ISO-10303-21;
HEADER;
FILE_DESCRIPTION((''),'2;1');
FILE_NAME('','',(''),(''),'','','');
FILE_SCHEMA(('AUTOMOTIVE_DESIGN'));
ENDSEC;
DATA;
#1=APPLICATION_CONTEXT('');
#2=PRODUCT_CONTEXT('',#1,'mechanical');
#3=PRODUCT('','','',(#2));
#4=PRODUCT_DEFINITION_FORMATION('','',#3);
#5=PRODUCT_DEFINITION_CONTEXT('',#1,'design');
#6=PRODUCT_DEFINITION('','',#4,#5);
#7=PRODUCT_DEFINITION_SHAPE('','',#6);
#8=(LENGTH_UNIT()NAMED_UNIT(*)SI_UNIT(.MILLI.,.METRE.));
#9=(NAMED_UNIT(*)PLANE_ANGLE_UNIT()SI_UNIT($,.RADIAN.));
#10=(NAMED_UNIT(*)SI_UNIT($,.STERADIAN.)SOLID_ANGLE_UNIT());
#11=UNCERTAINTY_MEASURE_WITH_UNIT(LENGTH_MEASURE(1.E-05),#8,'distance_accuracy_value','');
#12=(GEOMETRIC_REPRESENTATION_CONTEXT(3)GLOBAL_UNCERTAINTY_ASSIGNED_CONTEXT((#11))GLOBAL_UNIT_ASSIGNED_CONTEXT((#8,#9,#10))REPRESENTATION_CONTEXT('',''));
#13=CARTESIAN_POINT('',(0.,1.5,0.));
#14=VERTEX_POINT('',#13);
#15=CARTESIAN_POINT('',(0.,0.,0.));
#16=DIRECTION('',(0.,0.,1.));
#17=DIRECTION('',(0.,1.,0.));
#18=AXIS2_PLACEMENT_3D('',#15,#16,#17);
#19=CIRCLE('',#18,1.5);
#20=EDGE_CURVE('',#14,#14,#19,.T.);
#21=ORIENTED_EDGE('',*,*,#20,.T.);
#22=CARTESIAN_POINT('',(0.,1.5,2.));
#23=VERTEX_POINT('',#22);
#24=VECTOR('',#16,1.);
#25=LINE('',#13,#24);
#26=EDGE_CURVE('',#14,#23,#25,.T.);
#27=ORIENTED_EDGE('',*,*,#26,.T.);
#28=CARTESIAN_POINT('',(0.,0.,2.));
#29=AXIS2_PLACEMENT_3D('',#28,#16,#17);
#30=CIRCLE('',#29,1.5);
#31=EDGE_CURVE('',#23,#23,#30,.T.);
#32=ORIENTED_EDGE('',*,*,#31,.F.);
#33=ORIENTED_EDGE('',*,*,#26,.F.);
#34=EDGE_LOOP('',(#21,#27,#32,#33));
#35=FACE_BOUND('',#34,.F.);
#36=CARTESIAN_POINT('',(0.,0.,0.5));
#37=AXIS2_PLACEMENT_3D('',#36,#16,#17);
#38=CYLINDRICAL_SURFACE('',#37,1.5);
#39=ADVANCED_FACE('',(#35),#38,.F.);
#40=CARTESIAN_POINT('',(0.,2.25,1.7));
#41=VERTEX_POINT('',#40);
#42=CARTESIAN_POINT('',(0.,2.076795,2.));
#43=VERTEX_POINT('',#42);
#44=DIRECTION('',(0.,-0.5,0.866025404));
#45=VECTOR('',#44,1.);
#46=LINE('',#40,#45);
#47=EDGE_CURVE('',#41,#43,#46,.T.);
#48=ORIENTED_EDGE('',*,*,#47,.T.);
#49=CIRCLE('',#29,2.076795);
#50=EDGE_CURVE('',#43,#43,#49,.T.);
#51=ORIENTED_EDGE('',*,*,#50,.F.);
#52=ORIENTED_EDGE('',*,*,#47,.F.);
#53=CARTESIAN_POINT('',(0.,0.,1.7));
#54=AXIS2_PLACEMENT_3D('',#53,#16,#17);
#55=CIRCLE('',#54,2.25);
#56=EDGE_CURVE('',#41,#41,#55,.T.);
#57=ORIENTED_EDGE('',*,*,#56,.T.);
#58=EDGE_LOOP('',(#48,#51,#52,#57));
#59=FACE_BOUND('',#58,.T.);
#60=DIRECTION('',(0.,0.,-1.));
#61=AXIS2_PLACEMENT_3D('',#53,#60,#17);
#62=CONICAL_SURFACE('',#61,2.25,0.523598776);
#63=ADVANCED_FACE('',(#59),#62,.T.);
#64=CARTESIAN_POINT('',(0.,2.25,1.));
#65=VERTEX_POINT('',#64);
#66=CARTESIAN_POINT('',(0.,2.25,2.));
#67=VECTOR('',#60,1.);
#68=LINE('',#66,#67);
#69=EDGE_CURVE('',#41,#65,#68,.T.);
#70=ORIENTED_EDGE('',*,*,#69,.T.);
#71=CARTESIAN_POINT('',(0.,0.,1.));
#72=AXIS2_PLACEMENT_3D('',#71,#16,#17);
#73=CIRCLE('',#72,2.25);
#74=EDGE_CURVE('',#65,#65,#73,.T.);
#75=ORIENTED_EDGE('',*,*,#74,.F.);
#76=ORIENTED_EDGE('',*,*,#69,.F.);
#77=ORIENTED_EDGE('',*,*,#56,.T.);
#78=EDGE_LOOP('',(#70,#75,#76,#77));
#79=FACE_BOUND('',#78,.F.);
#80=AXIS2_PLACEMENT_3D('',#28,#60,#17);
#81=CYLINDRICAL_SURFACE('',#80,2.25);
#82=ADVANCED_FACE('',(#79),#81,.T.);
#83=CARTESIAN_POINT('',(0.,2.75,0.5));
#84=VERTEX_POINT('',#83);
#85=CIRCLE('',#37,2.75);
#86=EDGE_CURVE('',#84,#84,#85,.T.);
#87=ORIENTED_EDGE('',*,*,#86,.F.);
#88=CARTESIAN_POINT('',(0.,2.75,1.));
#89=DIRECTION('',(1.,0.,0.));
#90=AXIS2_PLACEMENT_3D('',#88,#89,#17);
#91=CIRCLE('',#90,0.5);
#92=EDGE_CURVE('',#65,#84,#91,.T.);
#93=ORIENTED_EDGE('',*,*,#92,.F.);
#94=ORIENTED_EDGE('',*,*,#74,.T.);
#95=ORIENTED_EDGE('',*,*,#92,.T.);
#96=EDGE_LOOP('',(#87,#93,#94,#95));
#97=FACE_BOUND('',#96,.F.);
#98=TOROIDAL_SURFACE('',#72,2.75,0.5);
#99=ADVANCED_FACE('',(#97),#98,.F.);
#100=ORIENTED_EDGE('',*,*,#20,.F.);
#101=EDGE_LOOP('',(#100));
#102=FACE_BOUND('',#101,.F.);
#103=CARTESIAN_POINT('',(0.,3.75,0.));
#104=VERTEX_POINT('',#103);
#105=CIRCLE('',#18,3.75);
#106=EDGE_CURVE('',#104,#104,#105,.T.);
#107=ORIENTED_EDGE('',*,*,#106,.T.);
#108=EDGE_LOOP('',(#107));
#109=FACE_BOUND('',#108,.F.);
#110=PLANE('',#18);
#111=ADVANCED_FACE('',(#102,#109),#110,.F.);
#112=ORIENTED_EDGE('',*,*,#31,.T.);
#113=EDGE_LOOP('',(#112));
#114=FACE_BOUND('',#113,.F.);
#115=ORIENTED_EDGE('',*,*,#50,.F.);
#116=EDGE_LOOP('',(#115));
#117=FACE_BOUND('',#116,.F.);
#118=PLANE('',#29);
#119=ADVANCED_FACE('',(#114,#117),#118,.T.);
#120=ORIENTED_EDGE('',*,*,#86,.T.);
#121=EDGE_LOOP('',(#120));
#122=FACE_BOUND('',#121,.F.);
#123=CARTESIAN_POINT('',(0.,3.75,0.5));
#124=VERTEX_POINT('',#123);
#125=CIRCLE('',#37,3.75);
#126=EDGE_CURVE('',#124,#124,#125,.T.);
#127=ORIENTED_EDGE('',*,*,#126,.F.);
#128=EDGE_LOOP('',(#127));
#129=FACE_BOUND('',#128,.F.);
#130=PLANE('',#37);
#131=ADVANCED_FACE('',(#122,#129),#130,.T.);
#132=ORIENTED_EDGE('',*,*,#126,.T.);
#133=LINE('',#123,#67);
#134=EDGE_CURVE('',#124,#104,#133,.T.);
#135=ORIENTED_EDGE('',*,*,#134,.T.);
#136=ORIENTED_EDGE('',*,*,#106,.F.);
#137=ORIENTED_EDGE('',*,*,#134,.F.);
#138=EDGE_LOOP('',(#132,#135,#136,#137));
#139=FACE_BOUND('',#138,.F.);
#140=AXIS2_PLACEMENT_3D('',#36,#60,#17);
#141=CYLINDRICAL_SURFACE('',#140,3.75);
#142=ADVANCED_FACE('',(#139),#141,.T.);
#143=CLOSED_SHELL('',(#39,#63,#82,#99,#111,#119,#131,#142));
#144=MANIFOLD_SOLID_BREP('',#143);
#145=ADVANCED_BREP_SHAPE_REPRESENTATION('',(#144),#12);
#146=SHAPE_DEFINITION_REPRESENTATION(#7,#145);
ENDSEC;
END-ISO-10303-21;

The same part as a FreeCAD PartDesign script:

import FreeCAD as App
import Part
import Sketcher


def edges_at(feature, points):
    """Names of the edges that pass closest to the given points."""
    edges = feature.Shape.Edges
    near = lambda p: min(range(len(edges)), key=lambda i: edges[i].distToShape(Part.Vertex(*p))[0])
    return sorted({f"Edge{near(p) + 1}" for p in points})


def add_polygon(sketch, points):
    """Adds a closed chain of lines whose ends are joined by coincident constraints."""
    first, n = sketch.GeometryCount, len(points)
    for a, b in zip(points, points[1:] + points[:1]):
        sketch.addGeometry(Part.LineSegment(App.Vector(*a, 0), App.Vector(*b, 0)), False)
    for i in range(n):
        sketch.addConstraint(Sketcher.Constraint("Coincident", first + i, 2, first + (i + 1) % n, 1))

doc = App.newDocument("Part")
body = doc.addObject("PartDesign::Body", "Body")

sketch1 = doc.addObject("Sketcher::SketchObject", "Sketch")
body.addObject(sketch1)
sketch1.AttachmentSupport = (doc.YZ_Plane, [""])
sketch1.MapMode = "FlatFace"
add_polygon(sketch1, [(2.2, 2), (1.5, 2), (1.5, 0), (3.8, 0), (3.8, 0.5), (2.2, 0.5)])
sketch1.addConstraint([
    Sketcher.Constraint("Horizontal", 0),
    Sketcher.Constraint("Vertical", 1),
    Sketcher.Constraint("Horizontal", 2),
    Sketcher.Constraint("Vertical", 3),
    Sketcher.Constraint("Horizontal", 4),
    Sketcher.Constraint("Vertical", 5),
    Sketcher.Constraint("PointOnObject", 1, 2, -1),
    Sketcher.Constraint("Equal", 4, 5),
    Sketcher.Constraint("DistanceY", 1, 2, 1, 1, 2.0),
    Sketcher.Constraint("DistanceY", 3, 1, 3, 2, 0.5),
    Sketcher.Constraint("DistanceX", 0, 2, 0, 1, 0.75),
    Sketcher.Constraint("DistanceX", -1, 1, 0, 2, 1.5),
])
revolution = doc.addObject("PartDesign::Revolution", "Revolution")
body.addObject(revolution)
revolution.Profile = sketch1
revolution.ReferenceAxis = (sketch1, ["V_Axis"])
revolution.Angle = 360
doc.recompute()

fillet = doc.addObject("PartDesign::Fillet", "Fillet")
body.addObject(fillet)
fillet.Base = (revolution, edges_at(revolution, [(0, -2.25, 0.5)]))
fillet.Radius = 0.5
doc.recompute()

chamfer = doc.addObject("PartDesign::Chamfer", "Chamfer")
body.addObject(chamfer)
chamfer.Base = (fillet, edges_at(fillet, [(0, -2.25, 2)]))
chamfer.ChamferType = "Distance and Angle"
chamfer.Size = 0.3
chamfer.Angle = 30

doc.recompute()
